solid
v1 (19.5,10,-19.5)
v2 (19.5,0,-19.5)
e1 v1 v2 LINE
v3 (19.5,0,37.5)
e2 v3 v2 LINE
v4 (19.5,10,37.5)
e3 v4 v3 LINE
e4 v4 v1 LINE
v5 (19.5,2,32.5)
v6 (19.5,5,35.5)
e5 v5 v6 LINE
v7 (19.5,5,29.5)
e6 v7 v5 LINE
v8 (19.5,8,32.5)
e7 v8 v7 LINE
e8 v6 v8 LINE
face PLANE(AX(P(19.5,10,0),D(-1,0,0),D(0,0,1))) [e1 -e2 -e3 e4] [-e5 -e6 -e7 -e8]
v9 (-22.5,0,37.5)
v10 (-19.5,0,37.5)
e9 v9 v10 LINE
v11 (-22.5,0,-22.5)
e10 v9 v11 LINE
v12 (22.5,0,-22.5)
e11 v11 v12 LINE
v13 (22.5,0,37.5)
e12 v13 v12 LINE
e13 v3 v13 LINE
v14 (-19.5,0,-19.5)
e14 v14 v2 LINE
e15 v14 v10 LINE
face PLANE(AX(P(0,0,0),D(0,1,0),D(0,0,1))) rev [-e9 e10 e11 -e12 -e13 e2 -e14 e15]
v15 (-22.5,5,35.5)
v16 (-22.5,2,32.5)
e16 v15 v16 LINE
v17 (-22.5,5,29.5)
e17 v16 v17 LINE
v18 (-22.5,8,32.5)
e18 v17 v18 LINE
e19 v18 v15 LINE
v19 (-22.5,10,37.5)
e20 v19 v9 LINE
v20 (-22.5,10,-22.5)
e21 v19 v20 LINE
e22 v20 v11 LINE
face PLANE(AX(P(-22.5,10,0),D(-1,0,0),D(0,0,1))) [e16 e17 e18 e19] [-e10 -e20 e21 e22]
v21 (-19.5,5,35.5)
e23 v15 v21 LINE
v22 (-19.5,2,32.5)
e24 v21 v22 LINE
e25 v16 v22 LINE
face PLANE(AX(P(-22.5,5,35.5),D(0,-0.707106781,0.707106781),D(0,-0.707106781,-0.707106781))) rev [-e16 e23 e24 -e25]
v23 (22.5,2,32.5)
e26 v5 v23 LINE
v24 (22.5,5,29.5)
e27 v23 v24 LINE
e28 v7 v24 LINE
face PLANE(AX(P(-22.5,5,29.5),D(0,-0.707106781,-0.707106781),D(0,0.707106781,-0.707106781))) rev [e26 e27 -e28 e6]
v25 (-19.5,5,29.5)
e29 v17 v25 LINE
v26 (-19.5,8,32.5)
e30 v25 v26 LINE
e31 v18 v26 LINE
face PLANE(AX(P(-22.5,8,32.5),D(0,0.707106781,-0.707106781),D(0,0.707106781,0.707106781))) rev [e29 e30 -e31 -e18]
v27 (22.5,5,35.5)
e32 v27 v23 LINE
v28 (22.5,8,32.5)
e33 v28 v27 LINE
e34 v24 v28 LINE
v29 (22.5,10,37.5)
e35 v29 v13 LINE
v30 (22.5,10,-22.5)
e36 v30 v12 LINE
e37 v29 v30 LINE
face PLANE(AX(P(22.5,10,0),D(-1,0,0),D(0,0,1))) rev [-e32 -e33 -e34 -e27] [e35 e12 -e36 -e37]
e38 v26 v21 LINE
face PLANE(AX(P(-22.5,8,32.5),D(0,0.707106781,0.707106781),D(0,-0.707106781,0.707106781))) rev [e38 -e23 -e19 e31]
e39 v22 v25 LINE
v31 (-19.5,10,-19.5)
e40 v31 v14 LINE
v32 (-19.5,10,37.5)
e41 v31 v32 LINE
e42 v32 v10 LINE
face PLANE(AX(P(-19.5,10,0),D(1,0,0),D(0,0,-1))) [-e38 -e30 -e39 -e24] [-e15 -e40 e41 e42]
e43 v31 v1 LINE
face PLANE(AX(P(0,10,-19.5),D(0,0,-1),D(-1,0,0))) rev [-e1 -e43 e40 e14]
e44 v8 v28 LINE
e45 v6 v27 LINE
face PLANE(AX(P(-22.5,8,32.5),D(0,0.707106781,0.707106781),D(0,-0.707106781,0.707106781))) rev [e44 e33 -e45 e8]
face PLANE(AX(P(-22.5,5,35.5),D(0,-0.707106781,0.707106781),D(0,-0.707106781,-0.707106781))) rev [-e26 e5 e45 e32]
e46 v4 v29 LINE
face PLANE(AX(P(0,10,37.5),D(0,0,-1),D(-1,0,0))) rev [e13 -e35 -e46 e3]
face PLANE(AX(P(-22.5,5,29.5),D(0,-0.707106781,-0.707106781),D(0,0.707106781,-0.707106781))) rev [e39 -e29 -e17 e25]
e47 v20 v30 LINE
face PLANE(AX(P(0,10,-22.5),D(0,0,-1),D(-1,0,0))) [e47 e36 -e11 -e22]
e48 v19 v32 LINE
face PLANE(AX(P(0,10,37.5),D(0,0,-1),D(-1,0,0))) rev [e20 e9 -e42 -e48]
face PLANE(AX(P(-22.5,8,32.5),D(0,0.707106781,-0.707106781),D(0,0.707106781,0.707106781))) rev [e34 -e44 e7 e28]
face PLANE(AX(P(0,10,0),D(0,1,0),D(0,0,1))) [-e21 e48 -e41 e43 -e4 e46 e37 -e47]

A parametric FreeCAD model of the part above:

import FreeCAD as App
import Part
import Sketcher
from FreeCAD import Vector
Q = App.Units.Quantity


def add_polygon(sketch, points):
    """Adds a closed chain of lines whose ends are joined by coincident constraints."""
    first, n = sketch.GeometryCount, len(points)
    for a, b in zip(points, points[1:] + points[:1]):
        sketch.addGeometry(Part.LineSegment(App.Vector(*a, 0), App.Vector(*b, 0)), False)
    for i in range(n):
        sketch.addConstraint(Sketcher.Constraint("Coincident", first + i, 2, first + (i + 1) % n, 1))

doc = App.newDocument("Part")
body = doc.addObject("PartDesign::Body", "Body")

# Sketch on XZ plane
sketch1 = doc.addObject("Sketcher::SketchObject", "Sketch")
body.addObject(sketch1)
sketch1.AttachmentSupport = (doc.XZ_Plane, [""])
sketch1.MapMode = "FlatFace"
add_polygon(sketch1, [(19.5, -19.5), (19.5, 37.5), (22.5, 37.5), (22.5, -22.5), (-22.5, -22.5), (-22.5, 37.5), (-19.5, 37.5), (-19.5, -19.5)])  # lines 0-7
sketch1.addConstraint([
    Sketcher.Constraint("Vertical", 0),
    Sketcher.Constraint("Horizontal", 1),
    Sketcher.Constraint("Vertical", 2),
    Sketcher.Constraint("Horizontal", 3),
    Sketcher.Constraint("Vertical", 4),
    Sketcher.Constraint("Horizontal", 5),
    Sketcher.Constraint("Vertical", 6),
    Sketcher.Constraint("Horizontal", 7),
    Sketcher.Constraint("Symmetric", 1, 2, 4, 2, -2),
    Sketcher.Constraint("Equal", 1, 5),
    Sketcher.Constraint("DistanceX", 1, 1, 1, 2, Q("3 mm")),
    Sketcher.Constraint("DistanceX", 3, 2, 3, 1, Q("45 mm")),
    Sketcher.Constraint("DistanceY", 0, 1, 0, 2, Q("57 mm")),
    Sketcher.Constraint("DistanceY", 2, 2, 2, 1, Q("60 mm")),
    Sketcher.Constraint("DistanceY", -1, 1, 0, 2, Q("37.5 mm")),
])
pad1 = doc.addObject("PartDesign::Pad", "Pad")
body.addObject(pad1)
pad1.Profile = sketch1
pad1.Length = 10
pad1.Reversed = True

# Sketch on YZ plane
sketch2 = doc.addObject("Sketcher::SketchObject", "Sketch001")
body.addObject(sketch2)
sketch2.AttachmentSupport = (doc.YZ_Plane, [""])
sketch2.MapMode = "FlatFace"
sketch2.AttachmentOffset = App.Placement(Vector(0, 0, 22.5), App.Rotation())
add_polygon(sketch2, [(8, 32.5), (5, 35.5), (2, 32.5), (5, 29.5)])  # lines 0-3
sketch2.addConstraint([
    Sketcher.Constraint("Perpendicular", 0, 1),
    Sketcher.Constraint("Perpendicular", 1, 2),
    Sketcher.Constraint("Perpendicular", 2, 3),
    Sketcher.Constraint("Horizontal", 1, 2, 3, 2),
    Sketcher.Constraint("Vertical", 0, 2, 2, 2),
    Sketcher.Constraint("DistanceX", -1, 1, 0, 2, Q("5 mm")),
    Sketcher.Constraint("DistanceX", -1, 1, 1, 2, Q("2 mm")),
    Sketcher.Constraint("DistanceY", -1, 1, 0, 2, Q("35.5 mm")),
])
pocket1 = doc.addObject("PartDesign::Pocket", "Pocket")
body.addObject(pocket1)
pocket1.Profile = sketch2
pocket1.Type = "ThroughAll"

doc.recompute()
